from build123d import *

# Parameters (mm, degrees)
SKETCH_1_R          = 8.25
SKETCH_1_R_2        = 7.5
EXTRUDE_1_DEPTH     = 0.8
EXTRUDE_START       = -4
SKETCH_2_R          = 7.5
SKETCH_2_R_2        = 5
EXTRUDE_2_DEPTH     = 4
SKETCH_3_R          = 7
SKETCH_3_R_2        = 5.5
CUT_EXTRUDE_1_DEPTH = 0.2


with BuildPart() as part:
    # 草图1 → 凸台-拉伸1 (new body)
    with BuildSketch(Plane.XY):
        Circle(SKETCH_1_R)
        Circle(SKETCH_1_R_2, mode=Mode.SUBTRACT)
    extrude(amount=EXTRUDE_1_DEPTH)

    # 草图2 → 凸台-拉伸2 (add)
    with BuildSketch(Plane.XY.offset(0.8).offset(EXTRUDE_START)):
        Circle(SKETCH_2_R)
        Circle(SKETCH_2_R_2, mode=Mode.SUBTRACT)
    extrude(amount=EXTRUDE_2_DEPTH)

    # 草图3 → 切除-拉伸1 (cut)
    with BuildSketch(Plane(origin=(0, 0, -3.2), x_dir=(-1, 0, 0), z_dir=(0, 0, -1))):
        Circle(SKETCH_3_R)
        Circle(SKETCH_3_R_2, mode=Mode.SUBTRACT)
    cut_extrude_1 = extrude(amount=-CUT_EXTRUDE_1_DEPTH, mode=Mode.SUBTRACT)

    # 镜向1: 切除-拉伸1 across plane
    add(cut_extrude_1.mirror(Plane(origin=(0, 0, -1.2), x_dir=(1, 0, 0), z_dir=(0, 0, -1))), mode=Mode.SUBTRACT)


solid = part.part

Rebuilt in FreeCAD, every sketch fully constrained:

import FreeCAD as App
import Part
import Sketcher
from FreeCAD import Vector

doc = App.newDocument("Part")
body = doc.addObject("PartDesign::Body", "Body")

# Sketch on XY plane
sketch1 = body.newObject("Sketcher::SketchObject", "Sketch")
sketch1.AttachmentSupport = (doc.getObject("XY_Plane"), [""])
sketch1.MapMode = "FlatFace"
sketch1.addGeometry([
    Part.Circle(Vector(0, 0, 0), Vector(0, 0, 1), 8.25),
    Part.Circle(Vector(0, 0, 0), Vector(0, 0, 1), 7.5),
], False)
sketch1.addConstraint([
    Sketcher.Constraint("Coincident", 0, 3, -1, 1),
    Sketcher.Constraint("Coincident", 1, 3, -1, 1),
    Sketcher.Constraint("Diameter", 1, 15.0),
    Sketcher.Constraint("Diameter", 0, 16.5),
])
pad1 = body.newObject("PartDesign::Pad", "Pad")
pad1.Profile = sketch1
pad1.Length = 0.8

# Sketch on XY plane
sketch2 = body.newObject("Sketcher::SketchObject", "Sketch001")
sketch2.AttachmentSupport = (doc.getObject("XY_Plane"), [""])
sketch2.MapMode = "FlatFace"
sketch2.AttachmentOffset = App.Placement(Vector(0, 0, -3.2), App.Rotation())
sketch2.addGeometry([
    Part.Circle(Vector(0, 0, 0), Vector(0, 0, 1), 7.5),
    Part.Circle(Vector(0, 0, 0), Vector(0, 0, 1), 5),
], False)
sketch2.addConstraint([
    Sketcher.Constraint("Coincident", 0, 3, -1, 1),
    Sketcher.Constraint("Coincident", 1, 3, -1, 1),
    Sketcher.Constraint("Diameter", 0, 15.0),
    Sketcher.Constraint("Diameter", 1, 10.0),
])
pad2 = body.newObject("PartDesign::Pad", "Pad001")
pad2.Profile = sketch2
pad2.Length = 4

# Sketch on XY plane
sketch3 = body.newObject("Sketcher::SketchObject", "Sketch002")
sketch3.AttachmentSupport = (doc.getObject("XY_Plane"), [""])
sketch3.MapMode = "FlatFace"
sketch3.AttachmentOffset = App.Placement(Vector(0, 0, -3.2), App.Rotation())
sketch3.addGeometry([
    Part.Circle(Vector(0, 0, 0), Vector(0, 0, 1), 7),
    Part.Circle(Vector(0, 0, 0), Vector(0, 0, 1), 5.5),
], False)
sketch3.addConstraint([
    Sketcher.Constraint("Coincident", 0, 3, -1, 1),
    Sketcher.Constraint("Coincident", 1, 3, -1, 1),
    Sketcher.Constraint("Diameter", 0, 14.0),
    Sketcher.Constraint("Diameter", 1, 11.0),
])
pocket1 = body.newObject("PartDesign::Pocket", "Pocket")
pocket1.Profile = sketch3
pocket1.Length = 0.2
pocket1.Reversed = True
doc.recompute()

datumplane = body.newObject("PartDesign::Plane", "DatumPlane")
datumplane.AttachmentSupport = (doc.getObject("XY_Plane"), [""])
datumplane.MapMode = "FlatFace"
datumplane.AttachmentOffset = App.Placement(Vector(0, 0, -1.2), App.Rotation())
mirrored = body.newObject("PartDesign::Mirrored", "Mirrored")
mirrored.Originals = [pocket1]
mirrored.MirrorPlane = (datumplane, [""])
body.Tip = mirrored

doc.recompute()
